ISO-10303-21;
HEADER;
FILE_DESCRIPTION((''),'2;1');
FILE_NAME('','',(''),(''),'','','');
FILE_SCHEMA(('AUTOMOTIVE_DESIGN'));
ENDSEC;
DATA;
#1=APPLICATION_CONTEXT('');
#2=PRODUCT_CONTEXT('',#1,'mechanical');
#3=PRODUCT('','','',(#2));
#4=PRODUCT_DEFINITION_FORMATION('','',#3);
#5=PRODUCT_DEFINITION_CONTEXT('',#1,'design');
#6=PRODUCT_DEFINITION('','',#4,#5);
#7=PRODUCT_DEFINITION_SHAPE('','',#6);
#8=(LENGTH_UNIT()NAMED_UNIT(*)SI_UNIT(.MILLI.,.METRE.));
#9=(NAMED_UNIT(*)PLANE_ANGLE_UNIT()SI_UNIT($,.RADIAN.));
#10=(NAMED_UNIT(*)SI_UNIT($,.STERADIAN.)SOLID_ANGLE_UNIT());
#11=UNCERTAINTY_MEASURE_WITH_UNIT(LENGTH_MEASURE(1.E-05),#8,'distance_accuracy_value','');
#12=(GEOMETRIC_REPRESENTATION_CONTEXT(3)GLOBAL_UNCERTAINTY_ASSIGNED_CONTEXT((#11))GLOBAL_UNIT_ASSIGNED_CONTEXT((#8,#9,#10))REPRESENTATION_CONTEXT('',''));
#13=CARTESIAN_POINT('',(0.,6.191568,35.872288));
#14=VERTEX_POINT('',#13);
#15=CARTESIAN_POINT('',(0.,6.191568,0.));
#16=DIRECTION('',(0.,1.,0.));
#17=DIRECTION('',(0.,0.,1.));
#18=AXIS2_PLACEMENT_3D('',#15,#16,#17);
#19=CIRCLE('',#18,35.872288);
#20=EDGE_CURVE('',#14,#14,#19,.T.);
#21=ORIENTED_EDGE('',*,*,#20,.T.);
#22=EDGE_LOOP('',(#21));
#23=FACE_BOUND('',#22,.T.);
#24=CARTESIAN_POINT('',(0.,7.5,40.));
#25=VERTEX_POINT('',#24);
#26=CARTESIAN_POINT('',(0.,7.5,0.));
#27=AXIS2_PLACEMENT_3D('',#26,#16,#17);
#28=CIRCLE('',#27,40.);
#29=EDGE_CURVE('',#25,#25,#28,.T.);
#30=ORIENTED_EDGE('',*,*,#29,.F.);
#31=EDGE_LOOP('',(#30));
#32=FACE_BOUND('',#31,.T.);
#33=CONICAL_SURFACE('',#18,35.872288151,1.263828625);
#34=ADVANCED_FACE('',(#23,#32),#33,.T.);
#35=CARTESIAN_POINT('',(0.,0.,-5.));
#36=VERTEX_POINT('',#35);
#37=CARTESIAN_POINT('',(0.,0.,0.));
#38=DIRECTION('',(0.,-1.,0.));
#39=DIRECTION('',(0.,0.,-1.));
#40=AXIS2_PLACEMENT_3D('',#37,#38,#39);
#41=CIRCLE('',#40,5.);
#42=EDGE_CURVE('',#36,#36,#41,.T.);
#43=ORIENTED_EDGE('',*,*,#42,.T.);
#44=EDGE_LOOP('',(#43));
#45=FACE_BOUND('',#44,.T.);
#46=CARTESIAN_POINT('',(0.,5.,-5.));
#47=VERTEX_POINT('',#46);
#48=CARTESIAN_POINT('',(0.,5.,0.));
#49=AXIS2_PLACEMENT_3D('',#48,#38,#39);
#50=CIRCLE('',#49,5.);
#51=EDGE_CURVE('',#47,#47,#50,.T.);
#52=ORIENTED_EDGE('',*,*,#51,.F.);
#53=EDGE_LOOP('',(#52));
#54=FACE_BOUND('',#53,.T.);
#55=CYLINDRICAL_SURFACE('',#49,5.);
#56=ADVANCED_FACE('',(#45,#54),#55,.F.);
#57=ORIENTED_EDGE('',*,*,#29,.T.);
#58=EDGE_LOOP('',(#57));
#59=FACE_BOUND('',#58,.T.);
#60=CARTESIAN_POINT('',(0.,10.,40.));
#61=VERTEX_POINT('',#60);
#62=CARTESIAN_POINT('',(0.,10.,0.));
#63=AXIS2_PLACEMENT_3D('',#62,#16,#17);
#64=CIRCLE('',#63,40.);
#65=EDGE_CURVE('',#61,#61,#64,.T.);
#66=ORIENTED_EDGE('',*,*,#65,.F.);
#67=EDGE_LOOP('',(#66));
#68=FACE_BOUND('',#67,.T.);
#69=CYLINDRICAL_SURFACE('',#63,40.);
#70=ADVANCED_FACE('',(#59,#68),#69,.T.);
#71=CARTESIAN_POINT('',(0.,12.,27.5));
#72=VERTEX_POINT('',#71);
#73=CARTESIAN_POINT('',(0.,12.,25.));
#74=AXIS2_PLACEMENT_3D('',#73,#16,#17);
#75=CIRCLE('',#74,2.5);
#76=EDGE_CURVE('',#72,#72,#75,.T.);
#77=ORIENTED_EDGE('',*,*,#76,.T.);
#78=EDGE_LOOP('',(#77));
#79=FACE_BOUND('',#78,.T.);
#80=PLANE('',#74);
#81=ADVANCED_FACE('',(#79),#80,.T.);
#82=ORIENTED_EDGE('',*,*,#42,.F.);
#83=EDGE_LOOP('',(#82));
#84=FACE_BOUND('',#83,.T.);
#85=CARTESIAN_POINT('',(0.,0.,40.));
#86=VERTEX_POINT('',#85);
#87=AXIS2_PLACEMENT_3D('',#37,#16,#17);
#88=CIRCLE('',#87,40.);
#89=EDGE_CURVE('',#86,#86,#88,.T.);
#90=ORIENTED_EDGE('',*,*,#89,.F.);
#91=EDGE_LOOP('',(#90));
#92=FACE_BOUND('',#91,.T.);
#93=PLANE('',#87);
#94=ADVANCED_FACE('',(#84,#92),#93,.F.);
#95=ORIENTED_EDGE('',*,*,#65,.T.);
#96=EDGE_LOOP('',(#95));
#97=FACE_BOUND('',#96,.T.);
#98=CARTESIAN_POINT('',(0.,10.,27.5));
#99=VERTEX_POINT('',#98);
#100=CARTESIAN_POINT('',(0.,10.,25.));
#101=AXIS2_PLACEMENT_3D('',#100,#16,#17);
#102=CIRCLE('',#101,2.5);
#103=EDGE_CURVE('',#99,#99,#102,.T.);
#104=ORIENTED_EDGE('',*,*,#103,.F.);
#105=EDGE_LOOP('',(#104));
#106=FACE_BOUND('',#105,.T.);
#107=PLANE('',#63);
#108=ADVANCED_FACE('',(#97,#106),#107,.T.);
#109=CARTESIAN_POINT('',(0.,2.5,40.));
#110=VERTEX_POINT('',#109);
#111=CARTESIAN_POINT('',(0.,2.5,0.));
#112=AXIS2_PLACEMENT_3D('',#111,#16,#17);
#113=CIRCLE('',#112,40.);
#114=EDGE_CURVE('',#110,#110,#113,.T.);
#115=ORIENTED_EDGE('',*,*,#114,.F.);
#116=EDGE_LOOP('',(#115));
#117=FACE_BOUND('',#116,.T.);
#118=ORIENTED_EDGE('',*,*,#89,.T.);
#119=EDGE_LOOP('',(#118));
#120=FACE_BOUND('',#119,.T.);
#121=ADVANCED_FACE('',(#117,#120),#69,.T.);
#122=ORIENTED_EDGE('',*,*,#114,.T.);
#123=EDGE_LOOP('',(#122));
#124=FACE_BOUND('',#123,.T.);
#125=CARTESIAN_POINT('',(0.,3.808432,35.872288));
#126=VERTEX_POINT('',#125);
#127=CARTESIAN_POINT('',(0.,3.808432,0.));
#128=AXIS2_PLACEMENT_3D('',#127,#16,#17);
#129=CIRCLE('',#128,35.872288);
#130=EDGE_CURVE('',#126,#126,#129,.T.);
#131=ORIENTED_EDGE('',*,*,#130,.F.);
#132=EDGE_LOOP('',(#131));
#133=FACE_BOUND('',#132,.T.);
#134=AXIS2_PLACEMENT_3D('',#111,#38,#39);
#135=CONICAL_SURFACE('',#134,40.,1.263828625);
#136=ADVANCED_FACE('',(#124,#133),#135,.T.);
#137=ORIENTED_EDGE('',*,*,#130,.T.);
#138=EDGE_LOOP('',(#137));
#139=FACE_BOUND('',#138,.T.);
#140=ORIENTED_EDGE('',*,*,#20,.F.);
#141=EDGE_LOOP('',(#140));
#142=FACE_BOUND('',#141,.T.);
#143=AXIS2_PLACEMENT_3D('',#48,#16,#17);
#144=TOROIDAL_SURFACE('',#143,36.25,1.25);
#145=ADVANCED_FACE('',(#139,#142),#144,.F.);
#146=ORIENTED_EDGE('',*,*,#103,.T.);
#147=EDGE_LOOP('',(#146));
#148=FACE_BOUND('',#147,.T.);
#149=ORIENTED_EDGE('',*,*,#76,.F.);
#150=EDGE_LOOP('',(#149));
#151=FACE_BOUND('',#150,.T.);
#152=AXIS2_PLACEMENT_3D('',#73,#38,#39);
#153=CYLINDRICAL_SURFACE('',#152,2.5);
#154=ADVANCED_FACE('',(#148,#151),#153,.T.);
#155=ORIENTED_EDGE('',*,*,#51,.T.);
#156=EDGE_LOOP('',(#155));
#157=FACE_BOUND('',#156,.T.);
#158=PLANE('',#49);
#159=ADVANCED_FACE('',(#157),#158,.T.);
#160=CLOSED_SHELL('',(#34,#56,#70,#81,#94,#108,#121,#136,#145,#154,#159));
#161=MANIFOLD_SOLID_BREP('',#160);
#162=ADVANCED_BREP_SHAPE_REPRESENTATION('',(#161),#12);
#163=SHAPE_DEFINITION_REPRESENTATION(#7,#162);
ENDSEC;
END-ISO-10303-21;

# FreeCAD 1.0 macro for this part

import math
import FreeCAD as App
import Part
import Sketcher
from FreeCAD import Vector

doc = App.newDocument("Part")
body = doc.addObject("PartDesign::Body", "Body")

# Sketch on XZ plane
sketch1 = body.newObject("Sketcher::SketchObject", "Sketch")
sketch1.AttachmentSupport = (doc.getObject("XZ_Plane"), [""])
sketch1.MapMode = "FlatFace"
sketch1.addGeometry(Part.Circle(Vector(0, 0, 0), Vector(0, 0, 1), 35), False)
sketch1.addConstraint([
    Sketcher.Constraint("Coincident", 0, 3, -1, 1),
    Sketcher.Constraint("Diameter", 0, 70.0),
])
pad1 = body.newObject("PartDesign::Pad", "Pad")
pad1.Profile = sketch1
pad1.Length = 10
pad1.Reversed = True

# Sketch on YZ plane
sketch2 = body.newObject("Sketcher::SketchObject", "Sketch001")
sketch2.AttachmentSupport = (doc.getObject("YZ_Plane"), [""])
sketch2.MapMode = "FlatFace"
sketch2.addGeometry([
    Part.LineSegment(Vector(7.5, -40, 0), Vector(10, -40, 0)),  # 0
    Part.LineSegment(Vector(10, -40, 0), Vector(10, -34, 0)),  # 1
    Part.LineSegment(Vector(10, -34, 0), Vector(0, -34, 0)),  # 2
    Part.LineSegment(Vector(0, -34, 0), Vector(0, -40, 0)),  # 3
    Part.LineSegment(Vector(0, -40, 0), Vector(2.5, -40, 0)),  # 4
    Part.LineSegment(Vector(2.5, -40, 0), Vector(3.8, -35.9, 0)),  # 5
    Part.ArcOfCircle(Part.Circle(Vector(5, -36.3, 0), Vector(0, 0, 1), 1.3), math.radians(18), math.radians(162)),  # 6
    Part.LineSegment(Vector(6.2, -35.9, 0), Vector(7.5, -40, 0)),  # 7
], False)
sketch2.addConstraint([
    Sketcher.Constraint("Coincident", 0, 2, 1, 1),
    Sketcher.Constraint("Coincident", 1, 2, 2, 1),
    Sketcher.Constraint("Coincident", 2, 2, 3, 1),
    Sketcher.Constraint("Coincident", 3, 2, 4, 1),
    Sketcher.Constraint("Coincident", 4, 2, 5, 1),
    Sketcher.Constraint("Tangent", 5, 2, 6, 2),
    Sketcher.Constraint("Tangent", 6, 1, 7, 1),
    Sketcher.Constraint("Coincident", 7, 2, 0, 1),
    Sketcher.Constraint("Horizontal", 0),
    Sketcher.Constraint("Vertical", 1),
    Sketcher.Constraint("Horizontal", 2),
    Sketcher.Constraint("Vertical", 3),
    Sketcher.Constraint("Horizontal", 4),
    Sketcher.Constraint("PointOnObject", 2, 2, -2),
    Sketcher.Constraint("Horizontal", 0, 2, 3, 2),
    Sketcher.Constraint("Horizontal", 5, 2, 6, 1),
    Sketcher.Constraint("Equal", 0, 4),
    Sketcher.Constraint("DistanceX", 2, 2, 2, 1, 10.0),
    Sketcher.Constraint("DistanceY", 1, 1, 1, 2, 6.0),
    Sketcher.Constraint("Radius", 6, 1.25),
    Sketcher.Constraint("DistanceX", 0, 1, 0, 2, 2.5),
    Sketcher.Constraint("DistanceY", 0, 2, -1, 1, 40.0),
    Sketcher.Constraint("DistanceY", 6, 3, -1, 1, 36.25),
])
revolution = body.newObject("PartDesign::Revolution", "Revolution")
revolution.Profile = sketch2
revolution.ReferenceAxis = (sketch2, ["H_Axis"])
revolution.Angle = 360

# Sketch on XZ plane
sketch3 = body.newObject("Sketcher::SketchObject", "Sketch002")
sketch3.AttachmentSupport = (doc.getObject("XZ_Plane"), [""])
sketch3.MapMode = "FlatFace"
sketch3.addGeometry(Part.Circle(Vector(0, 0, 0), Vector(0, 0, 1), 5), False)
sketch3.addConstraint([
    Sketcher.Constraint("Coincident", 0, 3, -1, 1),
    Sketcher.Constraint("Diameter", 0, 10.0),
])
pocket1 = body.newObject("PartDesign::Pocket", "Pocket")
pocket1.Profile = sketch3
pocket1.Length = 5

# Sketch on XZ plane
sketch4 = body.newObject("Sketcher::SketchObject", "Sketch003")
sketch4.AttachmentSupport = (doc.getObject("XZ_Plane"), [""])
sketch4.MapMode = "FlatFace"
sketch4.AttachmentOffset = App.Placement(Vector(0, 0, -10), App.Rotation())
sketch4.addGeometry(Part.Circle(Vector(0, 25, 0), Vector(0, 0, 1), 2.5), False)
sketch4.addConstraint([
    Sketcher.Constraint("PointOnObject", 0, 3, -2),
    Sketcher.Constraint("Diameter", 0, 5.0),
    Sketcher.Constraint("DistanceY", -1, 1, 0, 3, 25.0),
])
pad2 = body.newObject("PartDesign::Pad", "Pad001")
pad2.Profile = sketch4
pad2.Length = 2
pad2.Reversed = True

doc.recompute()
